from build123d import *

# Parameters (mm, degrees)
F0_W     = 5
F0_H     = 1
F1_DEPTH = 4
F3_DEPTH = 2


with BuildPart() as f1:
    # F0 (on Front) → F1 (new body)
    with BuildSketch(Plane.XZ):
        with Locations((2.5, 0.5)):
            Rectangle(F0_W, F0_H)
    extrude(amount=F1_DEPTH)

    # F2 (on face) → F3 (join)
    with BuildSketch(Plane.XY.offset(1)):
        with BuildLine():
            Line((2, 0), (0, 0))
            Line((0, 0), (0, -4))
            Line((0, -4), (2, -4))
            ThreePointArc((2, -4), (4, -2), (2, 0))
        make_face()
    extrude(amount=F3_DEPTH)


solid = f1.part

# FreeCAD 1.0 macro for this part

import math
import FreeCAD as App
import Part
import Sketcher
Q = App.Units.Quantity

doc = App.newDocument("Part")
body = doc.addObject("PartDesign::Body", "Body")

# Sketch on XZ plane
sketch1 = body.newObject("Sketcher::SketchObject", "Sketch")
sketch1.AttachmentSupport = (doc.getObject("XZ_Plane"), [""])
sketch1.MapMode = "FlatFace"
sketch1.addGeometry([
    Part.LineSegment(App.Vector(0, 1, 0), App.Vector(0, 0, 0)),
    Part.LineSegment(App.Vector(0, 0, 0), App.Vector(5, 0, 0)),
    Part.LineSegment(App.Vector(5, 0, 0), App.Vector(5, 1, 0)),
    Part.LineSegment(App.Vector(5, 1, 0), App.Vector(0, 1, 0)),
], False)
sketch1.addConstraint([
    Sketcher.Constraint("Coincident", 0, 2, 1, 1),
    Sketcher.Constraint("Coincident", 1, 2, 2, 1),
    Sketcher.Constraint("Coincident", 2, 2, 3, 1),
    Sketcher.Constraint("Coincident", 3, 2, 0, 1),
    Sketcher.Constraint("Vertical", 0),
    Sketcher.Constraint("Horizontal", 1),
    Sketcher.Constraint("Vertical", 2),
    Sketcher.Constraint("Horizontal", 3),
    Sketcher.Constraint("Coincident", 0, 2, -1, 1),
    Sketcher.Constraint("DistanceX", 1, 1, 1, 2, Q("5 mm")),
    Sketcher.Constraint("DistanceY", 0, 2, 0, 1, Q("1 mm")),
])
pad1 = body.newObject("PartDesign::Pad", "Pad")
pad1.Profile = sketch1
pad1.Length = 4

# Sketch on XY plane
sketch2 = body.newObject("Sketcher::SketchObject", "Sketch001")
sketch2.AttachmentSupport = (doc.getObject("XY_Plane"), [""])
sketch2.MapMode = "FlatFace"
sketch2.AttachmentOffset = App.Placement(App.Vector(0, 0, 1), App.Rotation())
sketch2.addGeometry([
    Part.LineSegment(App.Vector(2, 0, 0), App.Vector(0, 0, 0)),
    Part.LineSegment(App.Vector(0, 0, 0), App.Vector(0, -4, 0)),
    Part.LineSegment(App.Vector(0, -4, 0), App.Vector(2, -4, 0)),
    Part.ArcOfCircle(Part.Circle(App.Vector(2, -2, 0), App.Vector(0, 0, 1), 2), math.radians(-90), math.radians(90)),
], False)
sketch2.addConstraint([
    Sketcher.Constraint("Coincident", 0, 2, 1, 1),
    Sketcher.Constraint("Coincident", 1, 2, 2, 1),
    Sketcher.Constraint("Tangent", 2, 2, 3, 1),
    Sketcher.Constraint("Tangent", 3, 2, 0, 1),
    Sketcher.Constraint("Horizontal", 0),
    Sketcher.Constraint("Vertical", 1),
    Sketcher.Constraint("Horizontal", 2),
    Sketcher.Constraint("Coincident", 0, 2, -1, 1),
    Sketcher.Constraint("Radius", 3, Q("2 mm")),
    Sketcher.Constraint("DistanceX", 0, 2, 0, 1, Q("2 mm")),
])
pad2 = body.newObject("PartDesign::Pad", "Pad001")
pad2.Profile = sketch2
pad2.Length = 2

doc.recompute()
